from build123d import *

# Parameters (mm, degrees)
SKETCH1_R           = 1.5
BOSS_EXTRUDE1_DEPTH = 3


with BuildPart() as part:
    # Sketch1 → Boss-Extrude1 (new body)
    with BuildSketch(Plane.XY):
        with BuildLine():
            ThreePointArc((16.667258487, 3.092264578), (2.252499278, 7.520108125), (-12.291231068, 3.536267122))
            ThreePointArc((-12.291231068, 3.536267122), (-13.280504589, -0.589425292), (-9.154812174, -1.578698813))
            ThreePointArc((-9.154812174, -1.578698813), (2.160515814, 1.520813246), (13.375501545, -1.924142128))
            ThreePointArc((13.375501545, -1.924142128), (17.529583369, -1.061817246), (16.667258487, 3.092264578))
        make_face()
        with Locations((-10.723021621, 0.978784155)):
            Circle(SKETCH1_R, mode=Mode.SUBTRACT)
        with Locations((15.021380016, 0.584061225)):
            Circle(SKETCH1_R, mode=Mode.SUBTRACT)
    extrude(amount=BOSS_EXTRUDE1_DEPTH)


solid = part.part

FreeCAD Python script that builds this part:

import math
import FreeCAD as App
import Part
import Sketcher
from FreeCAD import Vector
Q = App.Units.Quantity

doc = App.newDocument("Part")
params = doc.addObject("Spreadsheet::Sheet", "Params")
for row, (alias, value) in enumerate([
    ("sketch1_diameter", "3 mm"),
    ("sketch1_radius", "3 mm"),
    ("pad1_length", "3 mm"),
], start=1):
    params.set(f"A{row}", alias)
    params.set(f"B{row}", "=" + value)
    params.setAlias(f"B{row}", alias)

body = doc.addObject("PartDesign::Body", "Body")

# Sketch on XY plane
sketch1 = doc.addObject("Sketcher::SketchObject", "Sketch")
body.addObject(sketch1)
sketch1.AttachmentSupport = (doc.XY_Plane, [""])
sketch1.MapMode = "FlatFace"
sketch1.addGeometry(Part.ArcOfCircle(Part.Circle(Vector(1.83812, -19.506302, 0), Vector(0, 0, 1), 27.029587), math.radians(56.727187), math.radians(121.515989)), False)
sketch1.addGeometry(Part.ArcOfCircle(Part.Circle(Vector(-10.723022, 0.978784, 0), Vector(0, 0, 1), 3), math.radians(121.515989), math.radians(301.515989)), False)
sketch1.addGeometry(Part.ArcOfCircle(Part.Circle(Vector(1.83812, -19.506302, 0), Vector(0, 0, 1), 21.029587), math.radians(56.727187), math.radians(121.515989)), False)
sketch1.addGeometry(Part.ArcOfCircle(Part.Circle(Vector(15.02138, 0.584061, 0), Vector(0, 0, 1), 3), math.radians(-123.272813), math.radians(56.727187)), False)
sketch1.addGeometry(Part.Circle(Vector(15.02138, 0.584061, 0), Vector(0, 0, 1), 1.5), False)
sketch1.addGeometry(Part.Circle(Vector(-10.723022, 0.978784, 0), Vector(0, 0, 1), 1.5), False)
sketch1.addConstraint(Sketcher.Constraint("Tangent", 0, 2, 1, 1))
sketch1.addConstraint(Sketcher.Constraint("Tangent", 1, 2, 2, 2))
sketch1.addConstraint(Sketcher.Constraint("Tangent", 2, 1, 3, 1))
sketch1.addConstraint(Sketcher.Constraint("Tangent", 3, 2, 0, 1))
sketch1.addConstraint(Sketcher.Constraint("Coincident", 2, 3, 0, 3))
sketch1.addConstraint(Sketcher.Constraint("Coincident", 4, 3, 3, 3))
sketch1.addConstraint(Sketcher.Constraint("Coincident", 5, 3, 1, 3))
sketch1.addConstraint(Sketcher.Constraint("Equal", 4, 5))
sketch1.addConstraint(Sketcher.Constraint("Diameter", 4, Q("3 mm")))
sketch1.addConstraint(Sketcher.Constraint("Radius", 1, Q("3 mm")))
sketch1.addConstraint(Sketcher.Constraint("Radius", 0, Q("27.029587 mm")))
sketch1.addConstraint(Sketcher.Constraint("DistanceY", 1, 2, -1, 1, Q("1.578699 mm")))
sketch1.addConstraint(Sketcher.Constraint("DistanceX", -1, 1, 2, 1, Q("13.375502 mm")))
sketch1.addConstraint(Sketcher.Constraint("DistanceX", 1, 3, 3, 3, Q("25.744402 mm")))
sketch1.addConstraint(Sketcher.Constraint("DistanceX", -1, 1, 0, 3, Q("1.83812 mm")))
sketch1.setExpression("Constraints[8]", "Params.sketch1_diameter")
sketch1.setExpression("Constraints[9]", "Params.sketch1_radius")
pad1 = doc.addObject("PartDesign::Pad", "Pad")
body.addObject(pad1)
pad1.Profile = sketch1
pad1.setExpression("Length", "Params.pad1_length")

doc.recompute()
